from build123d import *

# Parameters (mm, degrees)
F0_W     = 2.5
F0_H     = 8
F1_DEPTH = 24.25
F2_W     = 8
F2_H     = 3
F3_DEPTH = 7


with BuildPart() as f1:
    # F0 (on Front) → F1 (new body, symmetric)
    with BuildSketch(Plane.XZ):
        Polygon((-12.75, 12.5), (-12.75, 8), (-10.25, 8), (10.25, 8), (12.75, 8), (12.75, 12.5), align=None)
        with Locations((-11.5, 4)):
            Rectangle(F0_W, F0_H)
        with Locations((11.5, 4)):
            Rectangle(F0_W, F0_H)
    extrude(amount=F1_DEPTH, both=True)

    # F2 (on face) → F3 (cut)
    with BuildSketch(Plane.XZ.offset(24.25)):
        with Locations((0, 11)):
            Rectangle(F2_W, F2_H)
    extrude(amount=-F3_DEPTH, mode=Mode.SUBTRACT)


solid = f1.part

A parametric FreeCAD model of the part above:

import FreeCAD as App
import Part
import Sketcher
from FreeCAD import Vector
Q = App.Units.Quantity

doc = App.newDocument("Part")
body = doc.addObject("PartDesign::Body", "Body")

sketch1 = body.newObject("Sketcher::SketchObject", "Sketch")
sketch1.AttachmentSupport = (doc.getObject("XZ_Plane"), [""])
sketch1.MapMode = "FlatFace"
sketch1.addGeometry(Part.LineSegment(Vector(-12.75, 12.5, 0), Vector(-12.75, 0, 0)), False)
sketch1.addGeometry(Part.LineSegment(Vector(-12.75, 0, 0), Vector(-10.25, 0, 0)), False)
sketch1.addGeometry(Part.LineSegment(Vector(-10.25, 0, 0), Vector(-10.25, 8, 0)), False)
sketch1.addGeometry(Part.LineSegment(Vector(-10.25, 8, 0), Vector(10.25, 8, 0)), False)
sketch1.addGeometry(Part.LineSegment(Vector(10.25, 8, 0), Vector(10.25, 0, 0)), False)
sketch1.addGeometry(Part.LineSegment(Vector(10.25, 0, 0), Vector(12.75, 0, 0)), False)
sketch1.addGeometry(Part.LineSegment(Vector(12.75, 0, 0), Vector(12.75, 12.5, 0)), False)
sketch1.addGeometry(Part.LineSegment(Vector(12.75, 12.5, 0), Vector(-12.75, 12.5, 0)), False)
sketch1.addConstraint(Sketcher.Constraint("Coincident", 0, 2, 1, 1))
sketch1.addConstraint(Sketcher.Constraint("Coincident", 1, 2, 2, 1))
sketch1.addConstraint(Sketcher.Constraint("Coincident", 2, 2, 3, 1))
sketch1.addConstraint(Sketcher.Constraint("Coincident", 3, 2, 4, 1))
sketch1.addConstraint(Sketcher.Constraint("Coincident", 4, 2, 5, 1))
sketch1.addConstraint(Sketcher.Constraint("Coincident", 5, 2, 6, 1))
sketch1.addConstraint(Sketcher.Constraint("Coincident", 6, 2, 7, 1))
sketch1.addConstraint(Sketcher.Constraint("Coincident", 7, 2, 0, 1))
sketch1.addConstraint(Sketcher.Constraint("Vertical", 0))
sketch1.addConstraint(Sketcher.Constraint("Horizontal", 1))
sketch1.addConstraint(Sketcher.Constraint("Vertical", 2))
sketch1.addConstraint(Sketcher.Constraint("Horizontal", 3))
sketch1.addConstraint(Sketcher.Constraint("Vertical", 4))
sketch1.addConstraint(Sketcher.Constraint("Horizontal", 5))
sketch1.addConstraint(Sketcher.Constraint("Vertical", 6))
sketch1.addConstraint(Sketcher.Constraint("Horizontal", 7))
sketch1.addConstraint(Sketcher.Constraint("Symmetric", 1, 2, 4, 2, -1, 1))
sketch1.addConstraint(Sketcher.Constraint("Symmetric", 0, 2, 5, 2, -2))
sketch1.addConstraint(Sketcher.Constraint("DistanceY", 2, 1, 2, 2, Q("8 mm")))
sketch1.addConstraint(Sketcher.Constraint("DistanceX", 1, 1, 1, 2, Q("2.5 mm")))
sketch1.addConstraint(Sketcher.Constraint("DistanceX", 3, 1, 3, 2, Q("20.5 mm")))
sketch1.addConstraint(Sketcher.Constraint("DistanceY", 0, 2, 0, 1, Q("12.5 mm")))
pad1 = body.newObject("PartDesign::Pad", "Pad")
pad1.Profile = sketch1
pad1.Length = 48.5
pad1.Midplane = True

sketch2 = body.newObject("Sketcher::SketchObject", "Sketch001")
sketch2.AttachmentSupport = (doc.getObject("XZ_Plane"), [""])
sketch2.MapMode = "FlatFace"
sketch2.AttachmentOffset = App.Placement(Vector(0, 0, 24.25), App.Rotation())
sketch2.addGeometry(Part.LineSegment(Vector(-4, 12.5, 0), Vector(-4, 9.5, 0)), False)
sketch2.addGeometry(Part.LineSegment(Vector(-4, 9.5, 0), Vector(4, 9.5, 0)), False)
sketch2.addGeometry(Part.LineSegment(Vector(4, 9.5, 0), Vector(4, 12.5, 0)), False)
sketch2.addGeometry(Part.LineSegment(Vector(4, 12.5, 0), Vector(-4, 12.5, 0)), False)
sketch2.addConstraint(Sketcher.Constraint("Coincident", 0, 2, 1, 1))
sketch2.addConstraint(Sketcher.Constraint("Coincident", 1, 2, 2, 1))
sketch2.addConstraint(Sketcher.Constraint("Coincident", 2, 2, 3, 1))
sketch2.addConstraint(Sketcher.Constraint("Coincident", 3, 2, 0, 1))
sketch2.addConstraint(Sketcher.Constraint("Vertical", 0))
sketch2.addConstraint(Sketcher.Constraint("Horizontal", 1))
sketch2.addConstraint(Sketcher.Constraint("Vertical", 2))
sketch2.addConstraint(Sketcher.Constraint("Horizontal", 3))
sketch2.addConstraint(Sketcher.Constraint("DistanceX", 1, 1, 1, 2, Q("8 mm")))
sketch2.addConstraint(Sketcher.Constraint("DistanceY", 0, 2, 0, 1, Q("3 mm")))
sketch2.addConstraint(Sketcher.Constraint("DistanceX", 0, 2, -1, 1, Q("4 mm")))
sketch2.addConstraint(Sketcher.Constraint("DistanceY", -1, 1, 0, 2, Q("9.5 mm")))
pocket1 = body.newObject("PartDesign::Pocket", "Pocket")
pocket1.Profile = sketch2
pocket1.Length = 7

doc.recompute()
